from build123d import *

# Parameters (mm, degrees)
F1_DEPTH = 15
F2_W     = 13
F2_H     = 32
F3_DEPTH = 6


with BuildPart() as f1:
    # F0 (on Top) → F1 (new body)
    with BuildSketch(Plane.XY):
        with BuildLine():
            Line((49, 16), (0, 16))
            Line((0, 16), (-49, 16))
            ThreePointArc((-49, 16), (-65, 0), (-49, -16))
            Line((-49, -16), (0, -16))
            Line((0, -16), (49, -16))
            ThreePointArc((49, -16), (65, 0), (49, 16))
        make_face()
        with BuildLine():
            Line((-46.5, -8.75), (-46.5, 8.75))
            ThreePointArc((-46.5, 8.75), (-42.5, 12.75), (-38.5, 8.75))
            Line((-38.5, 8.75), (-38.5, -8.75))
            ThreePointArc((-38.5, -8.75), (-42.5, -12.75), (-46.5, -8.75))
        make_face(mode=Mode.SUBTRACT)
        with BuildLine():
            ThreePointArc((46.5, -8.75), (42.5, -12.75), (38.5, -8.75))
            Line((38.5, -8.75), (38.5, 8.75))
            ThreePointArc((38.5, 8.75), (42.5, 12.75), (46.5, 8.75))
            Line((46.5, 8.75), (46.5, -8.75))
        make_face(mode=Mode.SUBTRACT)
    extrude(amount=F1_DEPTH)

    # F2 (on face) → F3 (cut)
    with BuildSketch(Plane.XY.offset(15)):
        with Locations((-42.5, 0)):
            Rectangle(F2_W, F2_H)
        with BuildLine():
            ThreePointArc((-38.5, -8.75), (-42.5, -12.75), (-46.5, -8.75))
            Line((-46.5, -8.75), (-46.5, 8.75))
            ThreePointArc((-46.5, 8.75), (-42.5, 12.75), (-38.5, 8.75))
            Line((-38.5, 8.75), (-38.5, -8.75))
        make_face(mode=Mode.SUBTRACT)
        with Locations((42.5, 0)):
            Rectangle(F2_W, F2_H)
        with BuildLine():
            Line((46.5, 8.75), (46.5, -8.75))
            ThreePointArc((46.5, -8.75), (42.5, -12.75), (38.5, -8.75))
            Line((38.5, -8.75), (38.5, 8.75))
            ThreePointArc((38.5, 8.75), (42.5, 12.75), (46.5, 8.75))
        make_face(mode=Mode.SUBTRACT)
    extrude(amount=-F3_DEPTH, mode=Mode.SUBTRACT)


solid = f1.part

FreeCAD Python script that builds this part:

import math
import FreeCAD as App
import Part
import Sketcher


def add_polygon(sketch, points):
    """Adds a closed chain of lines whose ends are joined by coincident constraints."""
    first, n = sketch.GeometryCount, len(points)
    for a, b in zip(points, points[1:] + points[:1]):
        sketch.addGeometry(Part.LineSegment(App.Vector(*a, 0), App.Vector(*b, 0)), False)
    for i in range(n):
        sketch.addConstraint(Sketcher.Constraint("Coincident", first + i, 2, first + (i + 1) % n, 1))

doc = App.newDocument("Part")
body = doc.addObject("PartDesign::Body", "Body")

# Sketch on XY plane
sketch1 = body.newObject("Sketcher::SketchObject", "Sketch")
sketch1.AttachmentSupport = (doc.getObject("XY_Plane"), [""])
sketch1.MapMode = "FlatFace"
sketch1.addGeometry([
    Part.LineSegment(App.Vector(49, 16, 0), App.Vector(-49, 16, 0)),  # 0
    Part.ArcOfCircle(Part.Circle(App.Vector(-49, 0, 0), App.Vector(0, 0, 1), 16), math.radians(90), math.radians(270)),  # 1
    Part.LineSegment(App.Vector(-49, -16, 0), App.Vector(49, -16, 0)),  # 2
    Part.ArcOfCircle(Part.Circle(App.Vector(49, 0, 0), App.Vector(0, 0, 1), 16), math.radians(-90), math.radians(90)),  # 3
    Part.ArcOfCircle(Part.Circle(App.Vector(-42.5, -8.75, 0), App.Vector(0, 0, 1), 4), math.radians(180), math.radians(360)),  # 4
    Part.LineSegment(App.Vector(-46.5, -8.75, 0), App.Vector(-46.5, 8.75, 0)),  # 5
    Part.ArcOfCircle(Part.Circle(App.Vector(-42.5, 8.75, 0), App.Vector(0, 0, 1), 4), math.radians(0), math.radians(180)),  # 6
    Part.LineSegment(App.Vector(-38.5, 8.75, 0), App.Vector(-38.5, -8.75, 0)),  # 7
    Part.LineSegment(App.Vector(46.5, 8.75, 0), App.Vector(46.5, -8.75, 0)),  # 8
    Part.ArcOfCircle(Part.Circle(App.Vector(42.5, -8.75, 0), App.Vector(0, 0, 1), 4), math.radians(180), math.radians(360)),  # 9
    Part.LineSegment(App.Vector(38.5, -8.75, 0), App.Vector(38.5, 8.75, 0)),  # 10
    Part.ArcOfCircle(Part.Circle(App.Vector(42.5, 8.75, 0), App.Vector(0, 0, 1), 4), math.radians(0), math.radians(180)),  # 11
], False)
sketch1.addConstraint([
    Sketcher.Constraint("Tangent", 0, 2, 1, 1),
    Sketcher.Constraint("Tangent", 1, 2, 2, 1),
    Sketcher.Constraint("Tangent", 2, 2, 3, 1),
    Sketcher.Constraint("Tangent", 3, 2, 0, 1),
    Sketcher.Constraint("Tangent", 4, 1, 5, 1),
    Sketcher.Constraint("Tangent", 5, 2, 6, 2),
    Sketcher.Constraint("Tangent", 6, 1, 7, 1),
    Sketcher.Constraint("Tangent", 7, 2, 4, 2),
    Sketcher.Constraint("Tangent", 8, 2, 9, 2),
    Sketcher.Constraint("Tangent", 9, 1, 10, 1),
    Sketcher.Constraint("Tangent", 10, 2, 11, 2),
    Sketcher.Constraint("Tangent", 11, 1, 8, 1),
    Sketcher.Constraint("Horizontal", 0),
    Sketcher.Constraint("Horizontal", 2),
    Sketcher.Constraint("Vertical", 5),
    Sketcher.Constraint("Vertical", 7),
    Sketcher.Constraint("Vertical", 8),
    Sketcher.Constraint("Vertical", 10),
    Sketcher.Constraint("Equal", 6, 9),
    Sketcher.Constraint("Symmetric", 1, 3, 3, 3, -1, 1),
    Sketcher.Constraint("Symmetric", 6, 3, 9, 3, -1, 1),
    Sketcher.Constraint("Horizontal", 4, 3, 9, 3),
    Sketcher.Constraint("Horizontal", 6, 3, 11, 3),
    Sketcher.Constraint("Radius", 1, 16.0),
    Sketcher.Constraint("Radius", 4, 4.0),
    Sketcher.Constraint("DistanceX", 0, 2, 0, 1, 98.0),
    Sketcher.Constraint("DistanceY", 5, 1, 5, 2, 17.5),
    Sketcher.Constraint("DistanceX", 4, 3, 9, 3, 85.0),
])
pad1 = body.newObject("PartDesign::Pad", "Pad")
pad1.Profile = sketch1
pad1.Length = 15

# Sketch on XY plane
sketch2 = body.newObject("Sketcher::SketchObject", "Sketch001")
sketch2.AttachmentSupport = (doc.getObject("XY_Plane"), [""])
sketch2.MapMode = "FlatFace"
sketch2.AttachmentOffset = App.Placement(App.Vector(0, 0, 15), App.Rotation())
add_polygon(sketch2, [(-49, 16), (-49, -16), (-36, -16), (-36, 16)])  # lines 0-3
sketch2.addGeometry(Part.LineSegment(App.Vector(-38.5, 8.75, 0), App.Vector(-38.5, -8.75, 0)), False)  # 4
sketch2.addGeometry(Part.ArcOfCircle(Part.Circle(App.Vector(-42.5, -8.75, 0), App.Vector(0, 0, 1), 4), math.radians(180), math.radians(360)), False)  # 5
sketch2.addGeometry(Part.LineSegment(App.Vector(-46.5, -8.75, 0), App.Vector(-46.5, 8.75, 0)), False)  # 6
sketch2.addGeometry(Part.ArcOfCircle(Part.Circle(App.Vector(-42.5, 8.75, 0), App.Vector(0, 0, 1), 4), math.radians(0), math.radians(180)), False)  # 7
add_polygon(sketch2, [(36, 16), (36, -16), (49, -16), (49, 16)])  # lines 8-11
sketch2.addGeometry(Part.ArcOfCircle(Part.Circle(App.Vector(42.5, 8.75, 0), App.Vector(0, 0, 1), 4), math.radians(0), math.radians(180)), False)  # 12
sketch2.addGeometry(Part.LineSegment(App.Vector(46.5, 8.75, 0), App.Vector(46.5, -8.75, 0)), False)  # 13
sketch2.addGeometry(Part.ArcOfCircle(Part.Circle(App.Vector(42.5, -8.75, 0), App.Vector(0, 0, 1), 4), math.radians(180), math.radians(360)), False)  # 14
sketch2.addGeometry(Part.LineSegment(App.Vector(38.5, -8.75, 0), App.Vector(38.5, 8.75, 0)), False)  # 15
sketch2.addConstraint([
    Sketcher.Constraint("Tangent", 4, 2, 5, 2),
    Sketcher.Constraint("Tangent", 5, 1, 6, 1),
    Sketcher.Constraint("Tangent", 6, 2, 7, 2),
    Sketcher.Constraint("Tangent", 7, 1, 4, 1),
    Sketcher.Constraint("Tangent", 12, 1, 13, 1),
    Sketcher.Constraint("Tangent", 13, 2, 14, 2),
    Sketcher.Constraint("Tangent", 14, 1, 15, 1),
    Sketcher.Constraint("Tangent", 15, 2, 12, 2),
    Sketcher.Constraint("Vertical", 0),
    Sketcher.Constraint("Horizontal", 1),
    Sketcher.Constraint("Vertical", 2),
    Sketcher.Constraint("Horizontal", 3),
    Sketcher.Constraint("Vertical", 4),
    Sketcher.Constraint("Vertical", 6),
    Sketcher.Constraint("Vertical", 8),
    Sketcher.Constraint("Horizontal", 9),
    Sketcher.Constraint("Vertical", 10),
    Sketcher.Constraint("Horizontal", 11),
    Sketcher.Constraint("Vertical", 13),
    Sketcher.Constraint("Vertical", 15),
    Sketcher.Constraint("Equal", 7, 12),
    Sketcher.Constraint("Symmetric", 5, 3, 12, 3, -1, 1),
    Sketcher.Constraint("Symmetric", 2, 2, 8, 2, -1, 1),
    Sketcher.Constraint("Symmetric", 0, 2, 10, 2, -1, 1),
    Sketcher.Constraint("Horizontal", 7, 3, 12, 3),
    Sketcher.Constraint("Horizontal", 5, 3, 14, 3),
    Sketcher.Constraint("Horizontal", 1, 2, 8, 2),
    Sketcher.Constraint("Radius", 5, 4.0),
    Sketcher.Constraint("DistanceX", 1, 1, 1, 2, 13.0),
    Sketcher.Constraint("DistanceY", 0, 2, 0, 1, 32.0),
    Sketcher.Constraint("DistanceY", 4, 2, 4, 1, 17.5),
    Sketcher.Constraint("DistanceX", 0, 2, -1, 1, 49.0),
    Sketcher.Constraint("DistanceX", 7, 3, 12, 3, 85.0),
])
pocket1 = body.newObject("PartDesign::Pocket", "Pocket")
pocket1.Profile = sketch2
pocket1.Length = 6

doc.recompute()
